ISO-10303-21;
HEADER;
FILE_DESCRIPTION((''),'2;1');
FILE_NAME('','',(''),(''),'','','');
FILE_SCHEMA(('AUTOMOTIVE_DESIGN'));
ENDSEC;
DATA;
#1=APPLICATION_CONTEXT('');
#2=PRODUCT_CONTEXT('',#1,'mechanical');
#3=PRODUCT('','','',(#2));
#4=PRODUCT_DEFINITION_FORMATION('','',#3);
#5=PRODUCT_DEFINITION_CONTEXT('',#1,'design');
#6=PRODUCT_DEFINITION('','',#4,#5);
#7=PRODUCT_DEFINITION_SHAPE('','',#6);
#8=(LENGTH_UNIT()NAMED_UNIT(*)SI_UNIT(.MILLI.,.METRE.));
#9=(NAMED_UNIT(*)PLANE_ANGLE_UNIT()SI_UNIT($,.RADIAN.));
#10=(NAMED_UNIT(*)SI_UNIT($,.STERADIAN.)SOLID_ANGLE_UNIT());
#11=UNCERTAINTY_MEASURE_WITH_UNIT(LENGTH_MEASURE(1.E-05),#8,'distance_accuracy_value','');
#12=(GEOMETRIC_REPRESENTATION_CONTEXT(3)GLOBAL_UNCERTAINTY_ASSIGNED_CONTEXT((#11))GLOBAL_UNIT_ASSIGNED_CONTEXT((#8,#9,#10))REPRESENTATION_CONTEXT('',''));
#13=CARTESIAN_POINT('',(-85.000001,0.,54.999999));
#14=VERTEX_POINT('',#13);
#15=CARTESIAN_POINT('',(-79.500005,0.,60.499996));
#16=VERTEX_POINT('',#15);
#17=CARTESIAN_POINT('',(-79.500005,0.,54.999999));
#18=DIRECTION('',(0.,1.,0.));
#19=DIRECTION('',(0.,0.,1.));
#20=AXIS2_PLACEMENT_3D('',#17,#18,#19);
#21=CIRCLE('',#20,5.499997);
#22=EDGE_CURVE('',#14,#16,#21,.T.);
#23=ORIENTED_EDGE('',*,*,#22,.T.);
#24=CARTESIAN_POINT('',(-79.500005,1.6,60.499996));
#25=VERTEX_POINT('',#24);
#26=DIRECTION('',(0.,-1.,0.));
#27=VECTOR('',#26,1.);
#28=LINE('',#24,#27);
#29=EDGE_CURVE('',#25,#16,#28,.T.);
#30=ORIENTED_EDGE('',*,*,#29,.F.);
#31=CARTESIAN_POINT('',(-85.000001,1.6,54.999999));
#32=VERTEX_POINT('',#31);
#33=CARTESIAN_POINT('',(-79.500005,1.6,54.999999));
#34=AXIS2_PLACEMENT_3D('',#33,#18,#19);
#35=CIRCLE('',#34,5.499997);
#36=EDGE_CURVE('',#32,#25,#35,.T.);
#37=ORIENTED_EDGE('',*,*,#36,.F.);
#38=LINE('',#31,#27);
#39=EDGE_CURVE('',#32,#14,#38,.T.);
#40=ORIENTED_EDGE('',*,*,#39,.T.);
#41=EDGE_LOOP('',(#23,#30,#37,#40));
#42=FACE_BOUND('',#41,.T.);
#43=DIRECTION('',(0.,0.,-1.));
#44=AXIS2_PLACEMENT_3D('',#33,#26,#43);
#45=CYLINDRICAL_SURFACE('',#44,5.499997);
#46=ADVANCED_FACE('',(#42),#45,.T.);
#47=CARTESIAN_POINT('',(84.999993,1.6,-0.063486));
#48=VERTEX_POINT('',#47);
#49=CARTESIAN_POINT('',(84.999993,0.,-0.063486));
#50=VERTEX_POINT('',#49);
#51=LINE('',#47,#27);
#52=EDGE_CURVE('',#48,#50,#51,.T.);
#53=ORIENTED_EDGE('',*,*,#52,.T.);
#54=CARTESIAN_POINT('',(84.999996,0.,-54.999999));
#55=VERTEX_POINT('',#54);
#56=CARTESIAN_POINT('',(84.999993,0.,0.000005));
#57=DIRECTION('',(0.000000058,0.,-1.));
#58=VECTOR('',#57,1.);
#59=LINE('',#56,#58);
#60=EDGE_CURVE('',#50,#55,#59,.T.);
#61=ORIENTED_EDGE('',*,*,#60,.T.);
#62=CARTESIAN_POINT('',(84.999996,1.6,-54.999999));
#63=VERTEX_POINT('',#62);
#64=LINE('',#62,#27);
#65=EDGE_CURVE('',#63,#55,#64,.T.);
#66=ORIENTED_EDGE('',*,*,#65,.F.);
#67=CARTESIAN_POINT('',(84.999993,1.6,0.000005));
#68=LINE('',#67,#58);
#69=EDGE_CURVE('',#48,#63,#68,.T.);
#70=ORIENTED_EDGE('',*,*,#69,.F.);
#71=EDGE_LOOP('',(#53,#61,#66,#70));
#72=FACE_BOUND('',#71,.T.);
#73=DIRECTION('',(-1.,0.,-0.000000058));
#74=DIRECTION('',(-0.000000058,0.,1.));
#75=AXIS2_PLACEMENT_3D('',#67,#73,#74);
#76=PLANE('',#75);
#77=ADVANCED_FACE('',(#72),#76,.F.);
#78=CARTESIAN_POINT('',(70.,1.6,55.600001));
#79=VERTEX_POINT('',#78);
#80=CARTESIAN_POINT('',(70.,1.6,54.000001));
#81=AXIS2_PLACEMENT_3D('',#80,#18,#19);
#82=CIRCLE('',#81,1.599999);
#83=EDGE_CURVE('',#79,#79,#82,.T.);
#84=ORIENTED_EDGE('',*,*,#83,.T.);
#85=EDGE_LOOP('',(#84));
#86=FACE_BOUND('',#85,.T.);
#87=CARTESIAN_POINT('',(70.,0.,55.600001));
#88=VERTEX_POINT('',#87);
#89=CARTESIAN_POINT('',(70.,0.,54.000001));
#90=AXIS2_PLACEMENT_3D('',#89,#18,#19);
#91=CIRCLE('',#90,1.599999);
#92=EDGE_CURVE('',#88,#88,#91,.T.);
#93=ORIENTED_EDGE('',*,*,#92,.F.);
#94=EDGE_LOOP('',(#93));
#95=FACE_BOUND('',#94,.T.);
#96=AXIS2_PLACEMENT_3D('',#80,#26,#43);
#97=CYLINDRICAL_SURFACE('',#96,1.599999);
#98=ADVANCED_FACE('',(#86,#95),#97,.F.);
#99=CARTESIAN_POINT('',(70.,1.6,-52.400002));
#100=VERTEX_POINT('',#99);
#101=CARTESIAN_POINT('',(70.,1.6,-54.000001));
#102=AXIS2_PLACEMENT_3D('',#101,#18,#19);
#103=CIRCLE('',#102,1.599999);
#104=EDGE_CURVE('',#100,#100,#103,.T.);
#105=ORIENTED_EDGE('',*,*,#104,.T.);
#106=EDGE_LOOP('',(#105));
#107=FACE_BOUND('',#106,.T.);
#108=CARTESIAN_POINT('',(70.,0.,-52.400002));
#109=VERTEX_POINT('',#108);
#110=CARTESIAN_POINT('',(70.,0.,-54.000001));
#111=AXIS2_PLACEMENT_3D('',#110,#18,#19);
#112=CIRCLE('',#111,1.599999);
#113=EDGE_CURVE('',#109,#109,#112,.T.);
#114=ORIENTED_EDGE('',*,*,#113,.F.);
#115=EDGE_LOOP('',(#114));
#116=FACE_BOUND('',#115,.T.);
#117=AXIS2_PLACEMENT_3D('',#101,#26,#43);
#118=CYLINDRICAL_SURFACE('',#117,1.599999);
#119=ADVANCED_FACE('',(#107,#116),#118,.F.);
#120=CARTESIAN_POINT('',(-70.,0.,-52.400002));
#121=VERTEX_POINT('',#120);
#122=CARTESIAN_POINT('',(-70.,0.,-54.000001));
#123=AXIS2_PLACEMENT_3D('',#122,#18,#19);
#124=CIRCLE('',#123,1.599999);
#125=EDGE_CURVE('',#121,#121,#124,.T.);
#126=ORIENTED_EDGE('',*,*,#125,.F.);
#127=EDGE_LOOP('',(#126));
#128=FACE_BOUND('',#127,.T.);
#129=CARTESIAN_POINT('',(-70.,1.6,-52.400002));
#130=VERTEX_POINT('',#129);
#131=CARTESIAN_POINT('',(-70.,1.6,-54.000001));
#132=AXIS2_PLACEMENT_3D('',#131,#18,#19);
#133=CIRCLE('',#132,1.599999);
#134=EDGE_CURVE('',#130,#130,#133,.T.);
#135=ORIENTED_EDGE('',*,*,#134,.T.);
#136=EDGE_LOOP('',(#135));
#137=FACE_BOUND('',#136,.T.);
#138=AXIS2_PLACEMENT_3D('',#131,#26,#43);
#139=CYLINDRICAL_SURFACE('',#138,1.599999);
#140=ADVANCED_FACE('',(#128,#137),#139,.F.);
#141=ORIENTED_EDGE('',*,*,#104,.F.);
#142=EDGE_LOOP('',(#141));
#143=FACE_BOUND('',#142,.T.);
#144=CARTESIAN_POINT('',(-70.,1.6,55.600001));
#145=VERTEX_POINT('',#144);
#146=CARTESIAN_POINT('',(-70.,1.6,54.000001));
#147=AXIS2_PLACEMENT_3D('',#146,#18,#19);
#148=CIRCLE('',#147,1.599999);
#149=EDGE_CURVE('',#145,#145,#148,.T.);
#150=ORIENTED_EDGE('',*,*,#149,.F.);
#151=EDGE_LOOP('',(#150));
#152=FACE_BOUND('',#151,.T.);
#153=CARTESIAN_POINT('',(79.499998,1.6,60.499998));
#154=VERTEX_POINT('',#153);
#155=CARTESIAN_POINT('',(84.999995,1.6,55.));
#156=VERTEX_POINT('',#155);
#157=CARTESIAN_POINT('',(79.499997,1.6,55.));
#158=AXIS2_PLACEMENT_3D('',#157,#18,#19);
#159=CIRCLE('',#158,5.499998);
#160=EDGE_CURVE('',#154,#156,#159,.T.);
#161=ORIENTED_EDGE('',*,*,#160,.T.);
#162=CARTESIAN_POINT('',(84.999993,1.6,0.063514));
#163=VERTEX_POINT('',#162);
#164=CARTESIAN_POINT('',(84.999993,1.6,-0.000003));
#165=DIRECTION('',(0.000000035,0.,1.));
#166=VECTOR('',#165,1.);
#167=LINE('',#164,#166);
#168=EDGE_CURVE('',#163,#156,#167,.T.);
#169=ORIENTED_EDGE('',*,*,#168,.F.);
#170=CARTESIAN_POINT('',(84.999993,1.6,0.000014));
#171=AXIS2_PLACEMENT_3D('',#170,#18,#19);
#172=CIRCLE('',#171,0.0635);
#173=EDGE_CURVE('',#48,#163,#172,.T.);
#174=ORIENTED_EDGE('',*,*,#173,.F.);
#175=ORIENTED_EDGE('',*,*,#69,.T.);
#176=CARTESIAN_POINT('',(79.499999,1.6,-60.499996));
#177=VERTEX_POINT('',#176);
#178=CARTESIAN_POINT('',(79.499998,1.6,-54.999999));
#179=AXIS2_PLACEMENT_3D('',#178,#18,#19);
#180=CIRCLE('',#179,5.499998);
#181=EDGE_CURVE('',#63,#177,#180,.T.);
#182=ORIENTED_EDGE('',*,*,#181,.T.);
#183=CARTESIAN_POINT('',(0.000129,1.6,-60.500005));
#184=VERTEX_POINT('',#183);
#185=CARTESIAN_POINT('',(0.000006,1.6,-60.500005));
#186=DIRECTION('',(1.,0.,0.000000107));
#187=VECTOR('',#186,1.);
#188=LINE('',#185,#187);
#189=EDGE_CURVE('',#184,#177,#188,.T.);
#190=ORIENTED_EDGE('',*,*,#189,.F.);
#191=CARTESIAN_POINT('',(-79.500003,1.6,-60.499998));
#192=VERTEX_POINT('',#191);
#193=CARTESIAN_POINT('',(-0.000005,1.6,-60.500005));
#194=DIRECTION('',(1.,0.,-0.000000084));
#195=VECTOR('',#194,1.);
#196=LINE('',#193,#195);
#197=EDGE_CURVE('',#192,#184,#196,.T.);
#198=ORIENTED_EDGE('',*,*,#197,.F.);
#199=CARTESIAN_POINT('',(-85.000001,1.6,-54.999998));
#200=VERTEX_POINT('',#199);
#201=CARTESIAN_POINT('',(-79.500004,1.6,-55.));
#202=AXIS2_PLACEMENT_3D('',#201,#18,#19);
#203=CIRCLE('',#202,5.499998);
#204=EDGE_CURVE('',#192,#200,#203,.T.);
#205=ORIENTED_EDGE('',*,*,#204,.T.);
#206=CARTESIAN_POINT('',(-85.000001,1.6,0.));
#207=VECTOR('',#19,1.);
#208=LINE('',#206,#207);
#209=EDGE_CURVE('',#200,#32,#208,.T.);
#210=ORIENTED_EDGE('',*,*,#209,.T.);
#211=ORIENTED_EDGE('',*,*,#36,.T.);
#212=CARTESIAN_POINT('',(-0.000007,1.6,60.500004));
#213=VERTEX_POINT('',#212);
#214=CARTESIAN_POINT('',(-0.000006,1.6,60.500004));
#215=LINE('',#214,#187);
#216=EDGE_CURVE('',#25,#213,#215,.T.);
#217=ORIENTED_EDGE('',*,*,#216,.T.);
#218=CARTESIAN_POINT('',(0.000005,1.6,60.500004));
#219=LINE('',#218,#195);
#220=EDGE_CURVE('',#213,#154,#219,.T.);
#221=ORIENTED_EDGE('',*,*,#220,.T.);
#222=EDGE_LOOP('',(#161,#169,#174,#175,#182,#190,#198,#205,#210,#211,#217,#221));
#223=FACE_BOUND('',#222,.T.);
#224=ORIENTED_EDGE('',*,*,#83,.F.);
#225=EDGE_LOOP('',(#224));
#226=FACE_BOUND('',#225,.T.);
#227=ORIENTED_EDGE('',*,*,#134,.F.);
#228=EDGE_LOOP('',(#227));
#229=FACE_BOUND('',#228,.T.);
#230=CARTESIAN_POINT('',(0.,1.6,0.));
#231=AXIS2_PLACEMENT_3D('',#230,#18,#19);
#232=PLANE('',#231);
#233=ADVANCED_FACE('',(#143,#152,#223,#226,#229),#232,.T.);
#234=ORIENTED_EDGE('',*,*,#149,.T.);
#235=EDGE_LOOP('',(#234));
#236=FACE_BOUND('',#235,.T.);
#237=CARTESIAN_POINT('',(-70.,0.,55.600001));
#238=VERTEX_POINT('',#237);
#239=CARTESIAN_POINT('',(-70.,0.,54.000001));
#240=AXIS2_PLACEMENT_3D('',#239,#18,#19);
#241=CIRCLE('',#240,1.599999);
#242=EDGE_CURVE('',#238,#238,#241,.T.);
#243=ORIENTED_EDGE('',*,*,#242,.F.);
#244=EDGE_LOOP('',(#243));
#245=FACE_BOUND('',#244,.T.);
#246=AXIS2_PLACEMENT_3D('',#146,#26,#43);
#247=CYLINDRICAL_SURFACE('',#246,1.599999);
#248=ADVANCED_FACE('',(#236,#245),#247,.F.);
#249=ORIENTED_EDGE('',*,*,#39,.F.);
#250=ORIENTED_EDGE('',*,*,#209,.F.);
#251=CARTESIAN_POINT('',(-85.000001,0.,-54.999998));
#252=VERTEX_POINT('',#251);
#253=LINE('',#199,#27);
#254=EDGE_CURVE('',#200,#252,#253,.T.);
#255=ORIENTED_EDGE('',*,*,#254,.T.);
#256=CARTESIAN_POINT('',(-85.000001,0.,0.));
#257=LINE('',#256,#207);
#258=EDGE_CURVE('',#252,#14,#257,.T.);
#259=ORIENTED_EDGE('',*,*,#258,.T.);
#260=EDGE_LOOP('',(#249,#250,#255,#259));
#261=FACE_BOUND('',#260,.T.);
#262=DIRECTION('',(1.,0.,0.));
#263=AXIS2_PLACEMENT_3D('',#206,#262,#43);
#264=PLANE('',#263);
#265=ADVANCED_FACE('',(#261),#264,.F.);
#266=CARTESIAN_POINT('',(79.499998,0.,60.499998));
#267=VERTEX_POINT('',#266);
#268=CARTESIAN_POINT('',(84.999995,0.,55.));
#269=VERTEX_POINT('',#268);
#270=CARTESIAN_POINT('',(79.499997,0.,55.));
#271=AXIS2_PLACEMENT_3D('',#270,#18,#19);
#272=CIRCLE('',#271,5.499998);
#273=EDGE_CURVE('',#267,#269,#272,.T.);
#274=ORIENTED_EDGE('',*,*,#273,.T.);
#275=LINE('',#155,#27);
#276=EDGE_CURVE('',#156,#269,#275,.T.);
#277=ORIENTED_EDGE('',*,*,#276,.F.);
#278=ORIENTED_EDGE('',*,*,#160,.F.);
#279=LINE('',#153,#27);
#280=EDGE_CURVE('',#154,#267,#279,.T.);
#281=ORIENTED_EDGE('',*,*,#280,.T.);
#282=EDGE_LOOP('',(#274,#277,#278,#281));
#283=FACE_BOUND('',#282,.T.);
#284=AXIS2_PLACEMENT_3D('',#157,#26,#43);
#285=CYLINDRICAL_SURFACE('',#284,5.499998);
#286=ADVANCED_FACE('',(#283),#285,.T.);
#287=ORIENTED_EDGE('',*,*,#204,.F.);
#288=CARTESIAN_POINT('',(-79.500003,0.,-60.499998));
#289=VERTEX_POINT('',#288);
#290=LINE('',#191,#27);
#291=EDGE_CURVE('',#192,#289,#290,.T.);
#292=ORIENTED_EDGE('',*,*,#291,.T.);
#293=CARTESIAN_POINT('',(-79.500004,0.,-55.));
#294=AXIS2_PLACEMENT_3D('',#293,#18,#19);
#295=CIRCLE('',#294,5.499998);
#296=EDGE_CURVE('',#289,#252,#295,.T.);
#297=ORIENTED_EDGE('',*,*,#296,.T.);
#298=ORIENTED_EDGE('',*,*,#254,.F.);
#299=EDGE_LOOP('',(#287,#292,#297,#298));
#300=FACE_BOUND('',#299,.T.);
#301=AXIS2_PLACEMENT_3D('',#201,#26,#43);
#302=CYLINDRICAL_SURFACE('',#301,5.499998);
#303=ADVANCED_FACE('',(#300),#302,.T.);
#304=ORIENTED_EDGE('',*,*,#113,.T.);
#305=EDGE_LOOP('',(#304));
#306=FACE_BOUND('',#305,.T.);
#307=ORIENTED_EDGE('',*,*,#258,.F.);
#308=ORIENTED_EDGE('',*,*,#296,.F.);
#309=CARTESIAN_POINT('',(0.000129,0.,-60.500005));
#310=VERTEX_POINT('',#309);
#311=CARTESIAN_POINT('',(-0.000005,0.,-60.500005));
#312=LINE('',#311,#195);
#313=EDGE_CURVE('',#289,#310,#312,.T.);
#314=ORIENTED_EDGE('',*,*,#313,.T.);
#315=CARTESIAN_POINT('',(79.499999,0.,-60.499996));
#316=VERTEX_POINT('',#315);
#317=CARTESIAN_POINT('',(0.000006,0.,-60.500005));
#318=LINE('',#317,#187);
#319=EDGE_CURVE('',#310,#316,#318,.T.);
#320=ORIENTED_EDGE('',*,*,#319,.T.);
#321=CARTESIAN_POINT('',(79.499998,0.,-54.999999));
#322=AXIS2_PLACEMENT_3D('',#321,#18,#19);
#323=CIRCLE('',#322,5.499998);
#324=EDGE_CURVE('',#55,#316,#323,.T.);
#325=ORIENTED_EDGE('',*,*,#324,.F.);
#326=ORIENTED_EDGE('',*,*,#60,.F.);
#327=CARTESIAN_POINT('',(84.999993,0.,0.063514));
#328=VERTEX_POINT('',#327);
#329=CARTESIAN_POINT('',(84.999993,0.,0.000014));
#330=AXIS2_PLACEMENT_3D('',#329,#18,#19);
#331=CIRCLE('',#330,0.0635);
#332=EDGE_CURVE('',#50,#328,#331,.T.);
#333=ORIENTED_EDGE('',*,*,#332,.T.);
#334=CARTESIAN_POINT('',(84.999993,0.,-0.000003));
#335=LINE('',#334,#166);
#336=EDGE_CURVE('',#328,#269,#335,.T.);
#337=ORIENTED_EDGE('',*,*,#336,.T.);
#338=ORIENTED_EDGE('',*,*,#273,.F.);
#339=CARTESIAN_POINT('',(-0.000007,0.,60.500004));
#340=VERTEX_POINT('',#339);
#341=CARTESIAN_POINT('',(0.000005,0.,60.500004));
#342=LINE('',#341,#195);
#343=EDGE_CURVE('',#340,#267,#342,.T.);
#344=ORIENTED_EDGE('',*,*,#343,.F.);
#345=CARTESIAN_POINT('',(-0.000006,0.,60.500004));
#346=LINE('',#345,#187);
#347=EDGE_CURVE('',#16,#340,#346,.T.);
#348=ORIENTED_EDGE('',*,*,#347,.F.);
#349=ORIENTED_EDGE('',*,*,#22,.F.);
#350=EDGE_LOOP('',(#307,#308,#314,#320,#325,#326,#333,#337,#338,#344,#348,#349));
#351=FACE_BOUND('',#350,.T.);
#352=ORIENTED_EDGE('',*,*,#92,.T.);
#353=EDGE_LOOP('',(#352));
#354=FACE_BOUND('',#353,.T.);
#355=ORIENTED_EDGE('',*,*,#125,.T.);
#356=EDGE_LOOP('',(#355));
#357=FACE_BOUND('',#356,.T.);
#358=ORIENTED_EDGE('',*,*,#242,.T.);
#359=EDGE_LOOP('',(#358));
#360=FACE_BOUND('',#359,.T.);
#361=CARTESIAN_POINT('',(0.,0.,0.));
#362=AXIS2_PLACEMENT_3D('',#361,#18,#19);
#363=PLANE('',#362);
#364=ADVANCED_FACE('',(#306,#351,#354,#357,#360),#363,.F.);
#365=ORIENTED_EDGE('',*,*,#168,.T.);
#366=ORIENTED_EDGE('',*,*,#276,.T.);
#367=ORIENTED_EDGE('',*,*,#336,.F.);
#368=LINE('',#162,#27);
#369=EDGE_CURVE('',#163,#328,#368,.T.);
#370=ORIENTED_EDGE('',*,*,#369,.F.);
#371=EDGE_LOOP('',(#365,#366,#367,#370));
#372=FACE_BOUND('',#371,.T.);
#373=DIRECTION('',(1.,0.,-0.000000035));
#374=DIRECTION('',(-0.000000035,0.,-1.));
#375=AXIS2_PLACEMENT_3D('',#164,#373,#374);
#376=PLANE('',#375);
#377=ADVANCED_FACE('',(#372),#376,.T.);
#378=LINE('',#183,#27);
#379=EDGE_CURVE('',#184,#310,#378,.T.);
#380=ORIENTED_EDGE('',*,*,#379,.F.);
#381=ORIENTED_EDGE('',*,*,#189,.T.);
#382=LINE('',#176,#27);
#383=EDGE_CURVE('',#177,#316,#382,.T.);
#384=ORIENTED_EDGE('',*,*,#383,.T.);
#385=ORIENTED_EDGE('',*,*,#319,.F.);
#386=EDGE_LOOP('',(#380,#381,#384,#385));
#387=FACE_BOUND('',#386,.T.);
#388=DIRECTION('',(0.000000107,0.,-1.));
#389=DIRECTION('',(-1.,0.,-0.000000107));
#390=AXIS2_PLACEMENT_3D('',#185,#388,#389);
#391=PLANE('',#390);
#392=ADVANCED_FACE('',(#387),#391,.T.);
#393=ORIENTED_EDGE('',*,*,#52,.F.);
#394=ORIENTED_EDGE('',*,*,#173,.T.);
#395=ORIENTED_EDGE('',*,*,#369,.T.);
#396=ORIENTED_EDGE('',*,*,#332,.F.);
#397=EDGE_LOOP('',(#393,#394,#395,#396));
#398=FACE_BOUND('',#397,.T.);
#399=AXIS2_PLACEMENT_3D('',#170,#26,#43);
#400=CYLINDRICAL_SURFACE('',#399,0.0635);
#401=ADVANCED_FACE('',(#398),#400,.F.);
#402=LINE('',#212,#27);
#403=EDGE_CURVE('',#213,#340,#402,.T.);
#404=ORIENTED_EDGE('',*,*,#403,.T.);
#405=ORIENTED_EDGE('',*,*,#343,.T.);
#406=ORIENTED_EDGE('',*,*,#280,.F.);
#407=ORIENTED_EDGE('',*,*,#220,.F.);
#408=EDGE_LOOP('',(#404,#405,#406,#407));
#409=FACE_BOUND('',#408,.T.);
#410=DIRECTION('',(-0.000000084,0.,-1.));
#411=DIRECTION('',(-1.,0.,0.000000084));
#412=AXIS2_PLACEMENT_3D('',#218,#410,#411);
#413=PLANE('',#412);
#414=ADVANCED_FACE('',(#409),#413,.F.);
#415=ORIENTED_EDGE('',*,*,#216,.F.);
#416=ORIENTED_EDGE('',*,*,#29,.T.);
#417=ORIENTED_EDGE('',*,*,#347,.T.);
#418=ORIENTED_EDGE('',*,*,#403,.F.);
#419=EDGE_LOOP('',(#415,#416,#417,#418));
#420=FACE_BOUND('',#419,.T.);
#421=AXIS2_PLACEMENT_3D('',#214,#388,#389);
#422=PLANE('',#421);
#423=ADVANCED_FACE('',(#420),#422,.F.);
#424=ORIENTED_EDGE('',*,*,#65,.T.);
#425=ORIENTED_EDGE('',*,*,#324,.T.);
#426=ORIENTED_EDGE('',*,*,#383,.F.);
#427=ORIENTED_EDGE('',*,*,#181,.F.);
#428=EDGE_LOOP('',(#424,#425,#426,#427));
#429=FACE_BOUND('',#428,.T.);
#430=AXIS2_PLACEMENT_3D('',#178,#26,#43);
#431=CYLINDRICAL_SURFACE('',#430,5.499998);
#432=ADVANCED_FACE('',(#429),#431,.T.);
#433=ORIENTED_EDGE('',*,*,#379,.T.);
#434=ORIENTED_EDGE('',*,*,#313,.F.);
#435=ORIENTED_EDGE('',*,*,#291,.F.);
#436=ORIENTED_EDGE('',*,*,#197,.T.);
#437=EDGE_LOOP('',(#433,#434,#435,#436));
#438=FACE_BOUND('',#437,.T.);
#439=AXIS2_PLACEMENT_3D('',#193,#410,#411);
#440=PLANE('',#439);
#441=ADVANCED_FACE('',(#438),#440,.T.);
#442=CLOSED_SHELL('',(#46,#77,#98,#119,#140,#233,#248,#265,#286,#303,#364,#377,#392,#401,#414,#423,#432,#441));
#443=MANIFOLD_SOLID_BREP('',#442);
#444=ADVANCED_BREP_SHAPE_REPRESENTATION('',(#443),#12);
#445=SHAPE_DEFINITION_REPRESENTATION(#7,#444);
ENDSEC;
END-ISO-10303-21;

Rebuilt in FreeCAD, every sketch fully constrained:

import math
import FreeCAD as App
import Part
import Sketcher

V = App.Vector

doc = App.newDocument("Part")
body = doc.addObject("PartDesign::Body", "Body")

# Sketch on XZ plane
sketch1 = body.newObject("Sketcher::SketchObject", "Sketch")
sketch1.AttachmentSupport = (doc.getObject("XZ_Plane"), [""])
sketch1.MapMode = "FlatFace"
sketch1.addGeometry(Part.LineSegment(V(0, -60.5, 0), V(-79.5, -60.5, 0)), False)
sketch1.addGeometry(Part.ArcOfCircle(Part.Circle(V(-79.5, -55, 0), V(0, 0, 1), 5.5), math.radians(180), math.radians(270)), False)
sketch1.addGeometry(Part.LineSegment(V(-85, -55, 0), V(-85, 55, 0)), False)
sketch1.addGeometry(Part.ArcOfCircle(Part.Circle(V(-79.5, 55, 0), V(0, 0, 1), 5.5), math.radians(90), math.radians(180)), False)
sketch1.addGeometry(Part.LineSegment(V(-79.5, 60.5, 0), V(0, 60.5, 0)), False)
sketch1.addGeometry(Part.LineSegment(V(0, 60.5, 0), V(79.5, 60.5, 0)), False)
sketch1.addGeometry(Part.ArcOfCircle(Part.Circle(V(79.5, 55, 0), V(0, 0, 1), 5.5), math.radians(0), math.radians(90)), False)
sketch1.addGeometry(Part.LineSegment(V(85, 55, 0), V(85, 0.06, 0)), False)
sketch1.addGeometry(Part.ArcOfCircle(Part.Circle(V(85, 0, 0), V(0, 0, 1), 0.06), math.radians(90), math.radians(270)), False)
sketch1.addGeometry(Part.LineSegment(V(85, -0.06, 0), V(85, -55, 0)), False)
sketch1.addGeometry(Part.ArcOfCircle(Part.Circle(V(79.5, -55, 0), V(0, 0, 1), 5.5), math.radians(-90), math.radians(0)), False)
sketch1.addGeometry(Part.LineSegment(V(79.5, -60.5, 0), V(0, -60.5, 0)), False)
sketch1.addGeometry(Part.Circle(V(-70, 54, 0), V(0, 0, 1), 1.6), False)
sketch1.addGeometry(Part.Circle(V(70, 54, 0), V(0, 0, 1), 1.6), False)
sketch1.addGeometry(Part.Circle(V(-70, -54, 0), V(0, 0, 1), 1.6), False)
sketch1.addGeometry(Part.Circle(V(70, -54, 0), V(0, 0, 1), 1.6), False)
sketch1.addConstraint(Sketcher.Constraint("Tangent", 0, 2, 1, 2))
sketch1.addConstraint(Sketcher.Constraint("Tangent", 1, 1, 2, 1))
sketch1.addConstraint(Sketcher.Constraint("Tangent", 2, 2, 3, 2))
sketch1.addConstraint(Sketcher.Constraint("Tangent", 3, 1, 4, 1))
sketch1.addConstraint(Sketcher.Constraint("Coincident", 4, 2, 5, 1))
sketch1.addConstraint(Sketcher.Constraint("Tangent", 5, 2, 6, 2))
sketch1.addConstraint(Sketcher.Constraint("Tangent", 6, 1, 7, 1))
sketch1.addConstraint(Sketcher.Constraint("Coincident", 7, 2, 8, 1))
sketch1.addConstraint(Sketcher.Constraint("Coincident", 8, 2, 9, 1))
sketch1.addConstraint(Sketcher.Constraint("Tangent", 9, 2, 10, 2))
sketch1.addConstraint(Sketcher.Constraint("Tangent", 10, 1, 11, 1))
sketch1.addConstraint(Sketcher.Constraint("Coincident", 11, 2, 0, 1))
sketch1.addConstraint(Sketcher.Constraint("Vertical", 2))
sketch1.addConstraint(Sketcher.Constraint("Vertical", 7))
sketch1.addConstraint(Sketcher.Constraint("Equal", 1, 3))
sketch1.addConstraint(Sketcher.Constraint("Equal", 3, 6))
sketch1.addConstraint(Sketcher.Constraint("Equal", 6, 10))
sketch1.addConstraint(Sketcher.Constraint("Equal", 12, 13))
sketch1.addConstraint(Sketcher.Constraint("Equal", 13, 14))
sketch1.addConstraint(Sketcher.Constraint("Equal", 14, 15))
sketch1.addConstraint(Sketcher.Constraint("Symmetric", 1, 3, 6, 3, -1, 1))
sketch1.addConstraint(Sketcher.Constraint("Symmetric", 3, 3, 10, 3, -1, 1))
sketch1.addConstraint(Sketcher.Constraint("Symmetric", 13, 3, 14, 3, -1, 1))
sketch1.addConstraint(Sketcher.Constraint("Symmetric", 12, 3, 15, 3, -1, 1))
sketch1.addConstraint(Sketcher.Constraint("Symmetric", 12, 3, 13, 3, -2))
sketch1.addConstraint(Sketcher.Constraint("Symmetric", 0, 2, 3, 1, -1))
sketch1.addConstraint(Sketcher.Constraint("Parallel", 0, 4))
sketch1.addConstraint(Sketcher.Constraint("Perpendicular", 5, 9))
sketch1.addConstraint(Sketcher.Constraint("Vertical", 8, 3, 6, 1))
sketch1.addConstraint(Sketcher.Constraint("Diameter", 12, 3.199999))
sketch1.addConstraint(Sketcher.Constraint("DistanceY", 1, 3, -1, 1, 55.0))
sketch1.addConstraint(Sketcher.Constraint("DistanceX", 12, 3, -1, 1, 70.0))
sketch1.addConstraint(Sketcher.Constraint("DistanceY", -1, 1, 12, 3, 54.000001))
sketch1.addConstraint(Sketcher.Constraint("DistanceX", 1, 1, -1, 1, 85.000001))
sketch1.addConstraint(Sketcher.Constraint("DistanceX", 1, 3, 6, 3, 159.000001))
sketch1.addConstraint(Sketcher.Constraint("Distance", 4, 79.499998))
sketch1.addConstraint(Sketcher.Constraint("Radius", 8, 0.0635))
sketch1.addConstraint(Sketcher.Constraint("Distance", 11, 79.49987))
sketch1.addConstraint(Sketcher.Constraint("DistanceY", 7, 2, 7, 1, 54.936485))
pad1 = body.newObject("PartDesign::Pad", "Pad")
pad1.Profile = sketch1
pad1.Length = 1.6
pad1.Reversed = True

doc.recompute()
